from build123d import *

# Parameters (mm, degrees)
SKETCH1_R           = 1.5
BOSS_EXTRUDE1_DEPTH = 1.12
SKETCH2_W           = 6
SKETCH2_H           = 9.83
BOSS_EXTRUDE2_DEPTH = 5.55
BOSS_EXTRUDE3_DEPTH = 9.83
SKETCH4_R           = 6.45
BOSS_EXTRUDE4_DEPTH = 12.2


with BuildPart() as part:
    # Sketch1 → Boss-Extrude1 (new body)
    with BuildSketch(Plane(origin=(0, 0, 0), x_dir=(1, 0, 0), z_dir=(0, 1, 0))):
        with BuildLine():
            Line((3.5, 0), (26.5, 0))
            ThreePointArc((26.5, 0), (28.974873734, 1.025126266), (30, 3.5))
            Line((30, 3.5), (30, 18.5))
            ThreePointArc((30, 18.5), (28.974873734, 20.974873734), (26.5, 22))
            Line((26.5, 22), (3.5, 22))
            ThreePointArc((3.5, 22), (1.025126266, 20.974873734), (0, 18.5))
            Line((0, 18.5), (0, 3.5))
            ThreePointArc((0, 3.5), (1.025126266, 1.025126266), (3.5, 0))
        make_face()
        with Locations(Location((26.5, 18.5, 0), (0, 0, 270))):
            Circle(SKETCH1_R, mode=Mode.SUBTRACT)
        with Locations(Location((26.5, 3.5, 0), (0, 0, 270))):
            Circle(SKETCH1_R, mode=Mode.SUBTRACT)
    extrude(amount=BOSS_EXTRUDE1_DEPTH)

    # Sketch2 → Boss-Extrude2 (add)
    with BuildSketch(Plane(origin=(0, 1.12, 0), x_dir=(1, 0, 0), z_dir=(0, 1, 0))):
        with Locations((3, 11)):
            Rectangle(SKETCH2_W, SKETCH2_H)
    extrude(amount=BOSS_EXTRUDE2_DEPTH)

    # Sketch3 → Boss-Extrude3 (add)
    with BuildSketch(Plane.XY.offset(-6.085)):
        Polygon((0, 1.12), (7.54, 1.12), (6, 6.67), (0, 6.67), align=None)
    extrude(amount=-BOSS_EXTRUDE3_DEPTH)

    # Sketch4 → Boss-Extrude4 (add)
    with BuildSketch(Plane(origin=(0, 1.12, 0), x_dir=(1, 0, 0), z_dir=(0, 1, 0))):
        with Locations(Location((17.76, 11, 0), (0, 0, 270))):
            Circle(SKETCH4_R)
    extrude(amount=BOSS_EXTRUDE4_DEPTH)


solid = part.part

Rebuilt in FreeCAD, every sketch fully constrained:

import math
import FreeCAD as App
import Part
import Sketcher

V = App.Vector
Q = App.Units.Quantity

doc = App.newDocument("Part")
body = doc.addObject("PartDesign::Body", "Body")

# Sketch on XZ plane
sketch1 = doc.addObject("Sketcher::SketchObject", "Sketch")
body.addObject(sketch1)
sketch1.AttachmentSupport = (doc.XZ_Plane, [""])
sketch1.MapMode = "FlatFace"
sketch1.addGeometry([
    Part.LineSegment(V(3.5, 0, 0), V(26.5, 0, 0)),  # 0
    Part.ArcOfCircle(Part.Circle(V(26.5, -3.5, 0), V(0, 0, 1), 3.5), math.radians(0), math.radians(90)),  # 1
    Part.LineSegment(V(30, -3.5, 0), V(30, -18.5, 0)),  # 2
    Part.ArcOfCircle(Part.Circle(V(26.5, -18.5, 0), V(0, 0, 1), 3.5), math.radians(-90), math.radians(0)),  # 3
    Part.LineSegment(V(26.5, -22, 0), V(3.5, -22, 0)),  # 4
    Part.ArcOfCircle(Part.Circle(V(3.5, -18.5, 0), V(0, 0, 1), 3.5), math.radians(-180), math.radians(-90)),  # 5
    Part.LineSegment(V(0, -18.5, 0), V(0, -3.5, 0)),  # 6
    Part.ArcOfCircle(Part.Circle(V(3.5, -3.5, 0), V(0, 0, 1), 3.5), math.radians(90), math.radians(180)),  # 7
    Part.Circle(V(26.5, -3.5, 0), V(0, 0, 1), 1.5),  # 8
    Part.Circle(V(26.5, -18.5, 0), V(0, 0, 1), 1.5),  # 9
], False)
sketch1.addConstraint([
    Sketcher.Constraint("Tangent", 0, 2, 1, 2),
    Sketcher.Constraint("Tangent", 1, 1, 2, 1),
    Sketcher.Constraint("Tangent", 2, 2, 3, 2),
    Sketcher.Constraint("Tangent", 3, 1, 4, 1),
    Sketcher.Constraint("Tangent", 4, 2, 5, 2),
    Sketcher.Constraint("Tangent", 5, 1, 6, 1),
    Sketcher.Constraint("Tangent", 6, 2, 7, 2),
    Sketcher.Constraint("Tangent", 7, 1, 0, 1),
    Sketcher.Constraint("Horizontal", 0),
    Sketcher.Constraint("Vertical", 2),
    Sketcher.Constraint("Horizontal", 4),
    Sketcher.Constraint("Vertical", 6),
    Sketcher.Constraint("Coincident", 8, 3, 1, 3),
    Sketcher.Constraint("Coincident", 9, 3, 3, 3),
    Sketcher.Constraint("Equal", 1, 3),
    Sketcher.Constraint("Equal", 3, 5),
    Sketcher.Constraint("Equal", 5, 7),
    Sketcher.Constraint("Equal", 8, 9),
    Sketcher.Constraint("PointOnObject", 0, 2, -1),
    Sketcher.Constraint("PointOnObject", 5, 1, -2),
    Sketcher.Constraint("Diameter", 8, Q("3 mm")),
    Sketcher.Constraint("Radius", 1, Q("3.5 mm")),
    Sketcher.Constraint("DistanceX", 0, 1, 0, 2, Q("23 mm")),
    Sketcher.Constraint("DistanceY", 2, 2, 2, 1, Q("15 mm")),
])
pad1 = doc.addObject("PartDesign::Pad", "Pad")
body.addObject(pad1)
pad1.Profile = sketch1
pad1.Length = 1.12
pad1.Reversed = True

# Sketch on XZ plane
sketch2 = doc.addObject("Sketcher::SketchObject", "Sketch001")
body.addObject(sketch2)
sketch2.AttachmentSupport = (doc.XZ_Plane, [""])
sketch2.MapMode = "FlatFace"
sketch2.AttachmentOffset = App.Placement(V(0, 0, -1.12), App.Rotation())
sketch2.addGeometry([
    Part.LineSegment(V(0, -16, 0), V(0, -6, 0)),
    Part.LineSegment(V(0, -6, 0), V(6, -6, 0)),
    Part.LineSegment(V(6, -6, 0), V(6, -16, 0)),
    Part.LineSegment(V(6, -16, 0), V(0, -16, 0)),
], False)
sketch2.addConstraint([
    Sketcher.Constraint("Coincident", 0, 2, 1, 1),
    Sketcher.Constraint("Coincident", 1, 2, 2, 1),
    Sketcher.Constraint("Coincident", 2, 2, 3, 1),
    Sketcher.Constraint("Coincident", 3, 2, 0, 1),
    Sketcher.Constraint("Vertical", 0),
    Sketcher.Constraint("Horizontal", 1),
    Sketcher.Constraint("Vertical", 2),
    Sketcher.Constraint("Horizontal", 3),
    Sketcher.Constraint("PointOnObject", 0, 2, -2),
    Sketcher.Constraint("DistanceX", 1, 1, 1, 2, Q("6 mm")),
    Sketcher.Constraint("DistanceY", 0, 1, 0, 2, Q("9.83 mm")),
    Sketcher.Constraint("DistanceY", 0, 2, -1, 1, Q("6.085 mm")),
])
pad2 = doc.addObject("PartDesign::Pad", "Pad001")
body.addObject(pad2)
pad2.Profile = sketch2
pad2.Length = 5.55
pad2.Reversed = True

# Sketch on XY plane
sketch3 = doc.addObject("Sketcher::SketchObject", "Sketch002")
body.addObject(sketch3)
sketch3.AttachmentSupport = (doc.XY_Plane, [""])
sketch3.MapMode = "FlatFace"
sketch3.AttachmentOffset = App.Placement(V(0, 0, -6.085), App.Rotation())
sketch3.addGeometry([
    Part.LineSegment(V(0, 1, 0), V(8, 1, 0)),
    Part.LineSegment(V(8, 1, 0), V(6, 7, 0)),
    Part.LineSegment(V(6, 7, 0), V(0, 7, 0)),
    Part.LineSegment(V(0, 7, 0), V(0, 1, 0)),
], False)
sketch3.addConstraint([
    Sketcher.Constraint("Coincident", 0, 2, 1, 1),
    Sketcher.Constraint("Coincident", 1, 2, 2, 1),
    Sketcher.Constraint("Coincident", 2, 2, 3, 1),
    Sketcher.Constraint("Coincident", 3, 2, 0, 1),
    Sketcher.Constraint("Horizontal", 0),
    Sketcher.Constraint("Horizontal", 2),
    Sketcher.Constraint("Vertical", 3),
    Sketcher.Constraint("PointOnObject", 2, 2, -2),
    Sketcher.Constraint("DistanceX", 2, 2, 2, 1, Q("6 mm")),
    Sketcher.Constraint("DistanceX", 0, 1, 0, 2, Q("7.54 mm")),
    Sketcher.Constraint("DistanceY", 3, 2, 3, 1, Q("5.55 mm")),
    Sketcher.Constraint("DistanceY", -1, 1, 0, 2, Q("1.12 mm")),
])
pad3 = doc.addObject("PartDesign::Pad", "Pad002")
body.addObject(pad3)
pad3.Profile = sketch3
pad3.Length = 9.83
pad3.Reversed = True

# Sketch on XZ plane
sketch4 = doc.addObject("Sketcher::SketchObject", "Sketch003")
body.addObject(sketch4)
sketch4.AttachmentSupport = (doc.XZ_Plane, [""])
sketch4.MapMode = "FlatFace"
sketch4.AttachmentOffset = App.Placement(V(0, 0, -1.12), App.Rotation())
sketch4.addGeometry(Part.Circle(V(18, -11, 0), V(0, 0, 1), 6), False)
sketch4.addConstraint([
    Sketcher.Constraint("Diameter", 0, Q("12.9 mm")),
    Sketcher.Constraint("DistanceY", 0, 3, -1, 1, Q("11 mm")),
    Sketcher.Constraint("DistanceX", -1, 1, 0, 3, Q("17.76 mm")),
])
pad4 = doc.addObject("PartDesign::Pad", "Pad003")
body.addObject(pad4)
pad4.Profile = sketch4
pad4.Length = 12.2
pad4.Reversed = True

doc.recompute()
